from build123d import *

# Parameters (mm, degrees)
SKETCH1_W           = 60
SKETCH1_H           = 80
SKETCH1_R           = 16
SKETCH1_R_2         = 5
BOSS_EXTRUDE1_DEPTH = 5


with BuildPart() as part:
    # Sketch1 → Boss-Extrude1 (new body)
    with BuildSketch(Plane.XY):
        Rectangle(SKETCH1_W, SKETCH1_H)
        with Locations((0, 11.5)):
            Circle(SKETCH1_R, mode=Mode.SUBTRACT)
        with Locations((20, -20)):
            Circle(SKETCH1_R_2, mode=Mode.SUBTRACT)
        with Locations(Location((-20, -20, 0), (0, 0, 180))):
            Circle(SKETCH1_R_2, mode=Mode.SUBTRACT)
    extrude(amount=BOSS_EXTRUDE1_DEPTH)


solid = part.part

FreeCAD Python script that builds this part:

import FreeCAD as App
import Part
import Sketcher

V = App.Vector
Q = App.Units.Quantity


def add_polygon(sketch, points):
    """Adds a closed chain of lines whose ends are joined by coincident constraints."""
    first, n = sketch.GeometryCount, len(points)
    for a, b in zip(points, points[1:] + points[:1]):
        sketch.addGeometry(Part.LineSegment(App.Vector(*a, 0), App.Vector(*b, 0)), False)
    for i in range(n):
        sketch.addConstraint(Sketcher.Constraint("Coincident", first + i, 2, first + (i + 1) % n, 1))

doc = App.newDocument("Part")
body = doc.addObject("PartDesign::Body", "Body")

sketch1 = doc.addObject("Sketcher::SketchObject", "Sketch")
body.addObject(sketch1)
sketch1.AttachmentSupport = (doc.XY_Plane, [""])
sketch1.MapMode = "FlatFace"
add_polygon(sketch1, [(-30, 40), (-30, -40), (30, -40), (30, 40)])
sketch1.addGeometry(Part.Circle(V(-20, -20, 0), V(0, 0, 1), 5), False)
sketch1.addGeometry(Part.Circle(V(20, -20, 0), V(0, 0, 1), 5), False)
sketch1.addGeometry(Part.Circle(V(0, 12, 0), V(0, 0, 1), 16), False)
sketch1.addConstraint(Sketcher.Constraint("Vertical", 0))
sketch1.addConstraint(Sketcher.Constraint("Horizontal", 1))
sketch1.addConstraint(Sketcher.Constraint("Vertical", 2))
sketch1.addConstraint(Sketcher.Constraint("Horizontal", 3))
sketch1.addConstraint(Sketcher.Constraint("Equal", 4, 5))
sketch1.addConstraint(Sketcher.Constraint("Symmetric", 0, 2, 2, 2, -1, 1))
sketch1.addConstraint(Sketcher.Constraint("Symmetric", 4, 3, 5, 3, -2))
sketch1.addConstraint(Sketcher.Constraint("PointOnObject", 6, 3, -2))
sketch1.addConstraint(Sketcher.Constraint("Diameter", 4, Q("10 mm")))
sketch1.addConstraint(Sketcher.Constraint("Diameter", 6, Q("32 mm")))
sketch1.addConstraint(Sketcher.Constraint("DistanceX", 1, 1, 1, 2, Q("60 mm")))
sketch1.addConstraint(Sketcher.Constraint("DistanceY", 0, 2, 0, 1, Q("80 mm")))
sketch1.addConstraint(Sketcher.Constraint("DistanceX", 4, 3, -1, 1, Q("20 mm")))
sketch1.addConstraint(Sketcher.Constraint("DistanceY", 4, 3, -1, 1, Q("20 mm")))
sketch1.addConstraint(Sketcher.Constraint("DistanceY", -1, 1, 6, 3, Q("11.5 mm")))
pad1 = doc.addObject("PartDesign::Pad", "Pad")
body.addObject(pad1)
pad1.Profile = sketch1
pad1.Length = 5

doc.recompute()
